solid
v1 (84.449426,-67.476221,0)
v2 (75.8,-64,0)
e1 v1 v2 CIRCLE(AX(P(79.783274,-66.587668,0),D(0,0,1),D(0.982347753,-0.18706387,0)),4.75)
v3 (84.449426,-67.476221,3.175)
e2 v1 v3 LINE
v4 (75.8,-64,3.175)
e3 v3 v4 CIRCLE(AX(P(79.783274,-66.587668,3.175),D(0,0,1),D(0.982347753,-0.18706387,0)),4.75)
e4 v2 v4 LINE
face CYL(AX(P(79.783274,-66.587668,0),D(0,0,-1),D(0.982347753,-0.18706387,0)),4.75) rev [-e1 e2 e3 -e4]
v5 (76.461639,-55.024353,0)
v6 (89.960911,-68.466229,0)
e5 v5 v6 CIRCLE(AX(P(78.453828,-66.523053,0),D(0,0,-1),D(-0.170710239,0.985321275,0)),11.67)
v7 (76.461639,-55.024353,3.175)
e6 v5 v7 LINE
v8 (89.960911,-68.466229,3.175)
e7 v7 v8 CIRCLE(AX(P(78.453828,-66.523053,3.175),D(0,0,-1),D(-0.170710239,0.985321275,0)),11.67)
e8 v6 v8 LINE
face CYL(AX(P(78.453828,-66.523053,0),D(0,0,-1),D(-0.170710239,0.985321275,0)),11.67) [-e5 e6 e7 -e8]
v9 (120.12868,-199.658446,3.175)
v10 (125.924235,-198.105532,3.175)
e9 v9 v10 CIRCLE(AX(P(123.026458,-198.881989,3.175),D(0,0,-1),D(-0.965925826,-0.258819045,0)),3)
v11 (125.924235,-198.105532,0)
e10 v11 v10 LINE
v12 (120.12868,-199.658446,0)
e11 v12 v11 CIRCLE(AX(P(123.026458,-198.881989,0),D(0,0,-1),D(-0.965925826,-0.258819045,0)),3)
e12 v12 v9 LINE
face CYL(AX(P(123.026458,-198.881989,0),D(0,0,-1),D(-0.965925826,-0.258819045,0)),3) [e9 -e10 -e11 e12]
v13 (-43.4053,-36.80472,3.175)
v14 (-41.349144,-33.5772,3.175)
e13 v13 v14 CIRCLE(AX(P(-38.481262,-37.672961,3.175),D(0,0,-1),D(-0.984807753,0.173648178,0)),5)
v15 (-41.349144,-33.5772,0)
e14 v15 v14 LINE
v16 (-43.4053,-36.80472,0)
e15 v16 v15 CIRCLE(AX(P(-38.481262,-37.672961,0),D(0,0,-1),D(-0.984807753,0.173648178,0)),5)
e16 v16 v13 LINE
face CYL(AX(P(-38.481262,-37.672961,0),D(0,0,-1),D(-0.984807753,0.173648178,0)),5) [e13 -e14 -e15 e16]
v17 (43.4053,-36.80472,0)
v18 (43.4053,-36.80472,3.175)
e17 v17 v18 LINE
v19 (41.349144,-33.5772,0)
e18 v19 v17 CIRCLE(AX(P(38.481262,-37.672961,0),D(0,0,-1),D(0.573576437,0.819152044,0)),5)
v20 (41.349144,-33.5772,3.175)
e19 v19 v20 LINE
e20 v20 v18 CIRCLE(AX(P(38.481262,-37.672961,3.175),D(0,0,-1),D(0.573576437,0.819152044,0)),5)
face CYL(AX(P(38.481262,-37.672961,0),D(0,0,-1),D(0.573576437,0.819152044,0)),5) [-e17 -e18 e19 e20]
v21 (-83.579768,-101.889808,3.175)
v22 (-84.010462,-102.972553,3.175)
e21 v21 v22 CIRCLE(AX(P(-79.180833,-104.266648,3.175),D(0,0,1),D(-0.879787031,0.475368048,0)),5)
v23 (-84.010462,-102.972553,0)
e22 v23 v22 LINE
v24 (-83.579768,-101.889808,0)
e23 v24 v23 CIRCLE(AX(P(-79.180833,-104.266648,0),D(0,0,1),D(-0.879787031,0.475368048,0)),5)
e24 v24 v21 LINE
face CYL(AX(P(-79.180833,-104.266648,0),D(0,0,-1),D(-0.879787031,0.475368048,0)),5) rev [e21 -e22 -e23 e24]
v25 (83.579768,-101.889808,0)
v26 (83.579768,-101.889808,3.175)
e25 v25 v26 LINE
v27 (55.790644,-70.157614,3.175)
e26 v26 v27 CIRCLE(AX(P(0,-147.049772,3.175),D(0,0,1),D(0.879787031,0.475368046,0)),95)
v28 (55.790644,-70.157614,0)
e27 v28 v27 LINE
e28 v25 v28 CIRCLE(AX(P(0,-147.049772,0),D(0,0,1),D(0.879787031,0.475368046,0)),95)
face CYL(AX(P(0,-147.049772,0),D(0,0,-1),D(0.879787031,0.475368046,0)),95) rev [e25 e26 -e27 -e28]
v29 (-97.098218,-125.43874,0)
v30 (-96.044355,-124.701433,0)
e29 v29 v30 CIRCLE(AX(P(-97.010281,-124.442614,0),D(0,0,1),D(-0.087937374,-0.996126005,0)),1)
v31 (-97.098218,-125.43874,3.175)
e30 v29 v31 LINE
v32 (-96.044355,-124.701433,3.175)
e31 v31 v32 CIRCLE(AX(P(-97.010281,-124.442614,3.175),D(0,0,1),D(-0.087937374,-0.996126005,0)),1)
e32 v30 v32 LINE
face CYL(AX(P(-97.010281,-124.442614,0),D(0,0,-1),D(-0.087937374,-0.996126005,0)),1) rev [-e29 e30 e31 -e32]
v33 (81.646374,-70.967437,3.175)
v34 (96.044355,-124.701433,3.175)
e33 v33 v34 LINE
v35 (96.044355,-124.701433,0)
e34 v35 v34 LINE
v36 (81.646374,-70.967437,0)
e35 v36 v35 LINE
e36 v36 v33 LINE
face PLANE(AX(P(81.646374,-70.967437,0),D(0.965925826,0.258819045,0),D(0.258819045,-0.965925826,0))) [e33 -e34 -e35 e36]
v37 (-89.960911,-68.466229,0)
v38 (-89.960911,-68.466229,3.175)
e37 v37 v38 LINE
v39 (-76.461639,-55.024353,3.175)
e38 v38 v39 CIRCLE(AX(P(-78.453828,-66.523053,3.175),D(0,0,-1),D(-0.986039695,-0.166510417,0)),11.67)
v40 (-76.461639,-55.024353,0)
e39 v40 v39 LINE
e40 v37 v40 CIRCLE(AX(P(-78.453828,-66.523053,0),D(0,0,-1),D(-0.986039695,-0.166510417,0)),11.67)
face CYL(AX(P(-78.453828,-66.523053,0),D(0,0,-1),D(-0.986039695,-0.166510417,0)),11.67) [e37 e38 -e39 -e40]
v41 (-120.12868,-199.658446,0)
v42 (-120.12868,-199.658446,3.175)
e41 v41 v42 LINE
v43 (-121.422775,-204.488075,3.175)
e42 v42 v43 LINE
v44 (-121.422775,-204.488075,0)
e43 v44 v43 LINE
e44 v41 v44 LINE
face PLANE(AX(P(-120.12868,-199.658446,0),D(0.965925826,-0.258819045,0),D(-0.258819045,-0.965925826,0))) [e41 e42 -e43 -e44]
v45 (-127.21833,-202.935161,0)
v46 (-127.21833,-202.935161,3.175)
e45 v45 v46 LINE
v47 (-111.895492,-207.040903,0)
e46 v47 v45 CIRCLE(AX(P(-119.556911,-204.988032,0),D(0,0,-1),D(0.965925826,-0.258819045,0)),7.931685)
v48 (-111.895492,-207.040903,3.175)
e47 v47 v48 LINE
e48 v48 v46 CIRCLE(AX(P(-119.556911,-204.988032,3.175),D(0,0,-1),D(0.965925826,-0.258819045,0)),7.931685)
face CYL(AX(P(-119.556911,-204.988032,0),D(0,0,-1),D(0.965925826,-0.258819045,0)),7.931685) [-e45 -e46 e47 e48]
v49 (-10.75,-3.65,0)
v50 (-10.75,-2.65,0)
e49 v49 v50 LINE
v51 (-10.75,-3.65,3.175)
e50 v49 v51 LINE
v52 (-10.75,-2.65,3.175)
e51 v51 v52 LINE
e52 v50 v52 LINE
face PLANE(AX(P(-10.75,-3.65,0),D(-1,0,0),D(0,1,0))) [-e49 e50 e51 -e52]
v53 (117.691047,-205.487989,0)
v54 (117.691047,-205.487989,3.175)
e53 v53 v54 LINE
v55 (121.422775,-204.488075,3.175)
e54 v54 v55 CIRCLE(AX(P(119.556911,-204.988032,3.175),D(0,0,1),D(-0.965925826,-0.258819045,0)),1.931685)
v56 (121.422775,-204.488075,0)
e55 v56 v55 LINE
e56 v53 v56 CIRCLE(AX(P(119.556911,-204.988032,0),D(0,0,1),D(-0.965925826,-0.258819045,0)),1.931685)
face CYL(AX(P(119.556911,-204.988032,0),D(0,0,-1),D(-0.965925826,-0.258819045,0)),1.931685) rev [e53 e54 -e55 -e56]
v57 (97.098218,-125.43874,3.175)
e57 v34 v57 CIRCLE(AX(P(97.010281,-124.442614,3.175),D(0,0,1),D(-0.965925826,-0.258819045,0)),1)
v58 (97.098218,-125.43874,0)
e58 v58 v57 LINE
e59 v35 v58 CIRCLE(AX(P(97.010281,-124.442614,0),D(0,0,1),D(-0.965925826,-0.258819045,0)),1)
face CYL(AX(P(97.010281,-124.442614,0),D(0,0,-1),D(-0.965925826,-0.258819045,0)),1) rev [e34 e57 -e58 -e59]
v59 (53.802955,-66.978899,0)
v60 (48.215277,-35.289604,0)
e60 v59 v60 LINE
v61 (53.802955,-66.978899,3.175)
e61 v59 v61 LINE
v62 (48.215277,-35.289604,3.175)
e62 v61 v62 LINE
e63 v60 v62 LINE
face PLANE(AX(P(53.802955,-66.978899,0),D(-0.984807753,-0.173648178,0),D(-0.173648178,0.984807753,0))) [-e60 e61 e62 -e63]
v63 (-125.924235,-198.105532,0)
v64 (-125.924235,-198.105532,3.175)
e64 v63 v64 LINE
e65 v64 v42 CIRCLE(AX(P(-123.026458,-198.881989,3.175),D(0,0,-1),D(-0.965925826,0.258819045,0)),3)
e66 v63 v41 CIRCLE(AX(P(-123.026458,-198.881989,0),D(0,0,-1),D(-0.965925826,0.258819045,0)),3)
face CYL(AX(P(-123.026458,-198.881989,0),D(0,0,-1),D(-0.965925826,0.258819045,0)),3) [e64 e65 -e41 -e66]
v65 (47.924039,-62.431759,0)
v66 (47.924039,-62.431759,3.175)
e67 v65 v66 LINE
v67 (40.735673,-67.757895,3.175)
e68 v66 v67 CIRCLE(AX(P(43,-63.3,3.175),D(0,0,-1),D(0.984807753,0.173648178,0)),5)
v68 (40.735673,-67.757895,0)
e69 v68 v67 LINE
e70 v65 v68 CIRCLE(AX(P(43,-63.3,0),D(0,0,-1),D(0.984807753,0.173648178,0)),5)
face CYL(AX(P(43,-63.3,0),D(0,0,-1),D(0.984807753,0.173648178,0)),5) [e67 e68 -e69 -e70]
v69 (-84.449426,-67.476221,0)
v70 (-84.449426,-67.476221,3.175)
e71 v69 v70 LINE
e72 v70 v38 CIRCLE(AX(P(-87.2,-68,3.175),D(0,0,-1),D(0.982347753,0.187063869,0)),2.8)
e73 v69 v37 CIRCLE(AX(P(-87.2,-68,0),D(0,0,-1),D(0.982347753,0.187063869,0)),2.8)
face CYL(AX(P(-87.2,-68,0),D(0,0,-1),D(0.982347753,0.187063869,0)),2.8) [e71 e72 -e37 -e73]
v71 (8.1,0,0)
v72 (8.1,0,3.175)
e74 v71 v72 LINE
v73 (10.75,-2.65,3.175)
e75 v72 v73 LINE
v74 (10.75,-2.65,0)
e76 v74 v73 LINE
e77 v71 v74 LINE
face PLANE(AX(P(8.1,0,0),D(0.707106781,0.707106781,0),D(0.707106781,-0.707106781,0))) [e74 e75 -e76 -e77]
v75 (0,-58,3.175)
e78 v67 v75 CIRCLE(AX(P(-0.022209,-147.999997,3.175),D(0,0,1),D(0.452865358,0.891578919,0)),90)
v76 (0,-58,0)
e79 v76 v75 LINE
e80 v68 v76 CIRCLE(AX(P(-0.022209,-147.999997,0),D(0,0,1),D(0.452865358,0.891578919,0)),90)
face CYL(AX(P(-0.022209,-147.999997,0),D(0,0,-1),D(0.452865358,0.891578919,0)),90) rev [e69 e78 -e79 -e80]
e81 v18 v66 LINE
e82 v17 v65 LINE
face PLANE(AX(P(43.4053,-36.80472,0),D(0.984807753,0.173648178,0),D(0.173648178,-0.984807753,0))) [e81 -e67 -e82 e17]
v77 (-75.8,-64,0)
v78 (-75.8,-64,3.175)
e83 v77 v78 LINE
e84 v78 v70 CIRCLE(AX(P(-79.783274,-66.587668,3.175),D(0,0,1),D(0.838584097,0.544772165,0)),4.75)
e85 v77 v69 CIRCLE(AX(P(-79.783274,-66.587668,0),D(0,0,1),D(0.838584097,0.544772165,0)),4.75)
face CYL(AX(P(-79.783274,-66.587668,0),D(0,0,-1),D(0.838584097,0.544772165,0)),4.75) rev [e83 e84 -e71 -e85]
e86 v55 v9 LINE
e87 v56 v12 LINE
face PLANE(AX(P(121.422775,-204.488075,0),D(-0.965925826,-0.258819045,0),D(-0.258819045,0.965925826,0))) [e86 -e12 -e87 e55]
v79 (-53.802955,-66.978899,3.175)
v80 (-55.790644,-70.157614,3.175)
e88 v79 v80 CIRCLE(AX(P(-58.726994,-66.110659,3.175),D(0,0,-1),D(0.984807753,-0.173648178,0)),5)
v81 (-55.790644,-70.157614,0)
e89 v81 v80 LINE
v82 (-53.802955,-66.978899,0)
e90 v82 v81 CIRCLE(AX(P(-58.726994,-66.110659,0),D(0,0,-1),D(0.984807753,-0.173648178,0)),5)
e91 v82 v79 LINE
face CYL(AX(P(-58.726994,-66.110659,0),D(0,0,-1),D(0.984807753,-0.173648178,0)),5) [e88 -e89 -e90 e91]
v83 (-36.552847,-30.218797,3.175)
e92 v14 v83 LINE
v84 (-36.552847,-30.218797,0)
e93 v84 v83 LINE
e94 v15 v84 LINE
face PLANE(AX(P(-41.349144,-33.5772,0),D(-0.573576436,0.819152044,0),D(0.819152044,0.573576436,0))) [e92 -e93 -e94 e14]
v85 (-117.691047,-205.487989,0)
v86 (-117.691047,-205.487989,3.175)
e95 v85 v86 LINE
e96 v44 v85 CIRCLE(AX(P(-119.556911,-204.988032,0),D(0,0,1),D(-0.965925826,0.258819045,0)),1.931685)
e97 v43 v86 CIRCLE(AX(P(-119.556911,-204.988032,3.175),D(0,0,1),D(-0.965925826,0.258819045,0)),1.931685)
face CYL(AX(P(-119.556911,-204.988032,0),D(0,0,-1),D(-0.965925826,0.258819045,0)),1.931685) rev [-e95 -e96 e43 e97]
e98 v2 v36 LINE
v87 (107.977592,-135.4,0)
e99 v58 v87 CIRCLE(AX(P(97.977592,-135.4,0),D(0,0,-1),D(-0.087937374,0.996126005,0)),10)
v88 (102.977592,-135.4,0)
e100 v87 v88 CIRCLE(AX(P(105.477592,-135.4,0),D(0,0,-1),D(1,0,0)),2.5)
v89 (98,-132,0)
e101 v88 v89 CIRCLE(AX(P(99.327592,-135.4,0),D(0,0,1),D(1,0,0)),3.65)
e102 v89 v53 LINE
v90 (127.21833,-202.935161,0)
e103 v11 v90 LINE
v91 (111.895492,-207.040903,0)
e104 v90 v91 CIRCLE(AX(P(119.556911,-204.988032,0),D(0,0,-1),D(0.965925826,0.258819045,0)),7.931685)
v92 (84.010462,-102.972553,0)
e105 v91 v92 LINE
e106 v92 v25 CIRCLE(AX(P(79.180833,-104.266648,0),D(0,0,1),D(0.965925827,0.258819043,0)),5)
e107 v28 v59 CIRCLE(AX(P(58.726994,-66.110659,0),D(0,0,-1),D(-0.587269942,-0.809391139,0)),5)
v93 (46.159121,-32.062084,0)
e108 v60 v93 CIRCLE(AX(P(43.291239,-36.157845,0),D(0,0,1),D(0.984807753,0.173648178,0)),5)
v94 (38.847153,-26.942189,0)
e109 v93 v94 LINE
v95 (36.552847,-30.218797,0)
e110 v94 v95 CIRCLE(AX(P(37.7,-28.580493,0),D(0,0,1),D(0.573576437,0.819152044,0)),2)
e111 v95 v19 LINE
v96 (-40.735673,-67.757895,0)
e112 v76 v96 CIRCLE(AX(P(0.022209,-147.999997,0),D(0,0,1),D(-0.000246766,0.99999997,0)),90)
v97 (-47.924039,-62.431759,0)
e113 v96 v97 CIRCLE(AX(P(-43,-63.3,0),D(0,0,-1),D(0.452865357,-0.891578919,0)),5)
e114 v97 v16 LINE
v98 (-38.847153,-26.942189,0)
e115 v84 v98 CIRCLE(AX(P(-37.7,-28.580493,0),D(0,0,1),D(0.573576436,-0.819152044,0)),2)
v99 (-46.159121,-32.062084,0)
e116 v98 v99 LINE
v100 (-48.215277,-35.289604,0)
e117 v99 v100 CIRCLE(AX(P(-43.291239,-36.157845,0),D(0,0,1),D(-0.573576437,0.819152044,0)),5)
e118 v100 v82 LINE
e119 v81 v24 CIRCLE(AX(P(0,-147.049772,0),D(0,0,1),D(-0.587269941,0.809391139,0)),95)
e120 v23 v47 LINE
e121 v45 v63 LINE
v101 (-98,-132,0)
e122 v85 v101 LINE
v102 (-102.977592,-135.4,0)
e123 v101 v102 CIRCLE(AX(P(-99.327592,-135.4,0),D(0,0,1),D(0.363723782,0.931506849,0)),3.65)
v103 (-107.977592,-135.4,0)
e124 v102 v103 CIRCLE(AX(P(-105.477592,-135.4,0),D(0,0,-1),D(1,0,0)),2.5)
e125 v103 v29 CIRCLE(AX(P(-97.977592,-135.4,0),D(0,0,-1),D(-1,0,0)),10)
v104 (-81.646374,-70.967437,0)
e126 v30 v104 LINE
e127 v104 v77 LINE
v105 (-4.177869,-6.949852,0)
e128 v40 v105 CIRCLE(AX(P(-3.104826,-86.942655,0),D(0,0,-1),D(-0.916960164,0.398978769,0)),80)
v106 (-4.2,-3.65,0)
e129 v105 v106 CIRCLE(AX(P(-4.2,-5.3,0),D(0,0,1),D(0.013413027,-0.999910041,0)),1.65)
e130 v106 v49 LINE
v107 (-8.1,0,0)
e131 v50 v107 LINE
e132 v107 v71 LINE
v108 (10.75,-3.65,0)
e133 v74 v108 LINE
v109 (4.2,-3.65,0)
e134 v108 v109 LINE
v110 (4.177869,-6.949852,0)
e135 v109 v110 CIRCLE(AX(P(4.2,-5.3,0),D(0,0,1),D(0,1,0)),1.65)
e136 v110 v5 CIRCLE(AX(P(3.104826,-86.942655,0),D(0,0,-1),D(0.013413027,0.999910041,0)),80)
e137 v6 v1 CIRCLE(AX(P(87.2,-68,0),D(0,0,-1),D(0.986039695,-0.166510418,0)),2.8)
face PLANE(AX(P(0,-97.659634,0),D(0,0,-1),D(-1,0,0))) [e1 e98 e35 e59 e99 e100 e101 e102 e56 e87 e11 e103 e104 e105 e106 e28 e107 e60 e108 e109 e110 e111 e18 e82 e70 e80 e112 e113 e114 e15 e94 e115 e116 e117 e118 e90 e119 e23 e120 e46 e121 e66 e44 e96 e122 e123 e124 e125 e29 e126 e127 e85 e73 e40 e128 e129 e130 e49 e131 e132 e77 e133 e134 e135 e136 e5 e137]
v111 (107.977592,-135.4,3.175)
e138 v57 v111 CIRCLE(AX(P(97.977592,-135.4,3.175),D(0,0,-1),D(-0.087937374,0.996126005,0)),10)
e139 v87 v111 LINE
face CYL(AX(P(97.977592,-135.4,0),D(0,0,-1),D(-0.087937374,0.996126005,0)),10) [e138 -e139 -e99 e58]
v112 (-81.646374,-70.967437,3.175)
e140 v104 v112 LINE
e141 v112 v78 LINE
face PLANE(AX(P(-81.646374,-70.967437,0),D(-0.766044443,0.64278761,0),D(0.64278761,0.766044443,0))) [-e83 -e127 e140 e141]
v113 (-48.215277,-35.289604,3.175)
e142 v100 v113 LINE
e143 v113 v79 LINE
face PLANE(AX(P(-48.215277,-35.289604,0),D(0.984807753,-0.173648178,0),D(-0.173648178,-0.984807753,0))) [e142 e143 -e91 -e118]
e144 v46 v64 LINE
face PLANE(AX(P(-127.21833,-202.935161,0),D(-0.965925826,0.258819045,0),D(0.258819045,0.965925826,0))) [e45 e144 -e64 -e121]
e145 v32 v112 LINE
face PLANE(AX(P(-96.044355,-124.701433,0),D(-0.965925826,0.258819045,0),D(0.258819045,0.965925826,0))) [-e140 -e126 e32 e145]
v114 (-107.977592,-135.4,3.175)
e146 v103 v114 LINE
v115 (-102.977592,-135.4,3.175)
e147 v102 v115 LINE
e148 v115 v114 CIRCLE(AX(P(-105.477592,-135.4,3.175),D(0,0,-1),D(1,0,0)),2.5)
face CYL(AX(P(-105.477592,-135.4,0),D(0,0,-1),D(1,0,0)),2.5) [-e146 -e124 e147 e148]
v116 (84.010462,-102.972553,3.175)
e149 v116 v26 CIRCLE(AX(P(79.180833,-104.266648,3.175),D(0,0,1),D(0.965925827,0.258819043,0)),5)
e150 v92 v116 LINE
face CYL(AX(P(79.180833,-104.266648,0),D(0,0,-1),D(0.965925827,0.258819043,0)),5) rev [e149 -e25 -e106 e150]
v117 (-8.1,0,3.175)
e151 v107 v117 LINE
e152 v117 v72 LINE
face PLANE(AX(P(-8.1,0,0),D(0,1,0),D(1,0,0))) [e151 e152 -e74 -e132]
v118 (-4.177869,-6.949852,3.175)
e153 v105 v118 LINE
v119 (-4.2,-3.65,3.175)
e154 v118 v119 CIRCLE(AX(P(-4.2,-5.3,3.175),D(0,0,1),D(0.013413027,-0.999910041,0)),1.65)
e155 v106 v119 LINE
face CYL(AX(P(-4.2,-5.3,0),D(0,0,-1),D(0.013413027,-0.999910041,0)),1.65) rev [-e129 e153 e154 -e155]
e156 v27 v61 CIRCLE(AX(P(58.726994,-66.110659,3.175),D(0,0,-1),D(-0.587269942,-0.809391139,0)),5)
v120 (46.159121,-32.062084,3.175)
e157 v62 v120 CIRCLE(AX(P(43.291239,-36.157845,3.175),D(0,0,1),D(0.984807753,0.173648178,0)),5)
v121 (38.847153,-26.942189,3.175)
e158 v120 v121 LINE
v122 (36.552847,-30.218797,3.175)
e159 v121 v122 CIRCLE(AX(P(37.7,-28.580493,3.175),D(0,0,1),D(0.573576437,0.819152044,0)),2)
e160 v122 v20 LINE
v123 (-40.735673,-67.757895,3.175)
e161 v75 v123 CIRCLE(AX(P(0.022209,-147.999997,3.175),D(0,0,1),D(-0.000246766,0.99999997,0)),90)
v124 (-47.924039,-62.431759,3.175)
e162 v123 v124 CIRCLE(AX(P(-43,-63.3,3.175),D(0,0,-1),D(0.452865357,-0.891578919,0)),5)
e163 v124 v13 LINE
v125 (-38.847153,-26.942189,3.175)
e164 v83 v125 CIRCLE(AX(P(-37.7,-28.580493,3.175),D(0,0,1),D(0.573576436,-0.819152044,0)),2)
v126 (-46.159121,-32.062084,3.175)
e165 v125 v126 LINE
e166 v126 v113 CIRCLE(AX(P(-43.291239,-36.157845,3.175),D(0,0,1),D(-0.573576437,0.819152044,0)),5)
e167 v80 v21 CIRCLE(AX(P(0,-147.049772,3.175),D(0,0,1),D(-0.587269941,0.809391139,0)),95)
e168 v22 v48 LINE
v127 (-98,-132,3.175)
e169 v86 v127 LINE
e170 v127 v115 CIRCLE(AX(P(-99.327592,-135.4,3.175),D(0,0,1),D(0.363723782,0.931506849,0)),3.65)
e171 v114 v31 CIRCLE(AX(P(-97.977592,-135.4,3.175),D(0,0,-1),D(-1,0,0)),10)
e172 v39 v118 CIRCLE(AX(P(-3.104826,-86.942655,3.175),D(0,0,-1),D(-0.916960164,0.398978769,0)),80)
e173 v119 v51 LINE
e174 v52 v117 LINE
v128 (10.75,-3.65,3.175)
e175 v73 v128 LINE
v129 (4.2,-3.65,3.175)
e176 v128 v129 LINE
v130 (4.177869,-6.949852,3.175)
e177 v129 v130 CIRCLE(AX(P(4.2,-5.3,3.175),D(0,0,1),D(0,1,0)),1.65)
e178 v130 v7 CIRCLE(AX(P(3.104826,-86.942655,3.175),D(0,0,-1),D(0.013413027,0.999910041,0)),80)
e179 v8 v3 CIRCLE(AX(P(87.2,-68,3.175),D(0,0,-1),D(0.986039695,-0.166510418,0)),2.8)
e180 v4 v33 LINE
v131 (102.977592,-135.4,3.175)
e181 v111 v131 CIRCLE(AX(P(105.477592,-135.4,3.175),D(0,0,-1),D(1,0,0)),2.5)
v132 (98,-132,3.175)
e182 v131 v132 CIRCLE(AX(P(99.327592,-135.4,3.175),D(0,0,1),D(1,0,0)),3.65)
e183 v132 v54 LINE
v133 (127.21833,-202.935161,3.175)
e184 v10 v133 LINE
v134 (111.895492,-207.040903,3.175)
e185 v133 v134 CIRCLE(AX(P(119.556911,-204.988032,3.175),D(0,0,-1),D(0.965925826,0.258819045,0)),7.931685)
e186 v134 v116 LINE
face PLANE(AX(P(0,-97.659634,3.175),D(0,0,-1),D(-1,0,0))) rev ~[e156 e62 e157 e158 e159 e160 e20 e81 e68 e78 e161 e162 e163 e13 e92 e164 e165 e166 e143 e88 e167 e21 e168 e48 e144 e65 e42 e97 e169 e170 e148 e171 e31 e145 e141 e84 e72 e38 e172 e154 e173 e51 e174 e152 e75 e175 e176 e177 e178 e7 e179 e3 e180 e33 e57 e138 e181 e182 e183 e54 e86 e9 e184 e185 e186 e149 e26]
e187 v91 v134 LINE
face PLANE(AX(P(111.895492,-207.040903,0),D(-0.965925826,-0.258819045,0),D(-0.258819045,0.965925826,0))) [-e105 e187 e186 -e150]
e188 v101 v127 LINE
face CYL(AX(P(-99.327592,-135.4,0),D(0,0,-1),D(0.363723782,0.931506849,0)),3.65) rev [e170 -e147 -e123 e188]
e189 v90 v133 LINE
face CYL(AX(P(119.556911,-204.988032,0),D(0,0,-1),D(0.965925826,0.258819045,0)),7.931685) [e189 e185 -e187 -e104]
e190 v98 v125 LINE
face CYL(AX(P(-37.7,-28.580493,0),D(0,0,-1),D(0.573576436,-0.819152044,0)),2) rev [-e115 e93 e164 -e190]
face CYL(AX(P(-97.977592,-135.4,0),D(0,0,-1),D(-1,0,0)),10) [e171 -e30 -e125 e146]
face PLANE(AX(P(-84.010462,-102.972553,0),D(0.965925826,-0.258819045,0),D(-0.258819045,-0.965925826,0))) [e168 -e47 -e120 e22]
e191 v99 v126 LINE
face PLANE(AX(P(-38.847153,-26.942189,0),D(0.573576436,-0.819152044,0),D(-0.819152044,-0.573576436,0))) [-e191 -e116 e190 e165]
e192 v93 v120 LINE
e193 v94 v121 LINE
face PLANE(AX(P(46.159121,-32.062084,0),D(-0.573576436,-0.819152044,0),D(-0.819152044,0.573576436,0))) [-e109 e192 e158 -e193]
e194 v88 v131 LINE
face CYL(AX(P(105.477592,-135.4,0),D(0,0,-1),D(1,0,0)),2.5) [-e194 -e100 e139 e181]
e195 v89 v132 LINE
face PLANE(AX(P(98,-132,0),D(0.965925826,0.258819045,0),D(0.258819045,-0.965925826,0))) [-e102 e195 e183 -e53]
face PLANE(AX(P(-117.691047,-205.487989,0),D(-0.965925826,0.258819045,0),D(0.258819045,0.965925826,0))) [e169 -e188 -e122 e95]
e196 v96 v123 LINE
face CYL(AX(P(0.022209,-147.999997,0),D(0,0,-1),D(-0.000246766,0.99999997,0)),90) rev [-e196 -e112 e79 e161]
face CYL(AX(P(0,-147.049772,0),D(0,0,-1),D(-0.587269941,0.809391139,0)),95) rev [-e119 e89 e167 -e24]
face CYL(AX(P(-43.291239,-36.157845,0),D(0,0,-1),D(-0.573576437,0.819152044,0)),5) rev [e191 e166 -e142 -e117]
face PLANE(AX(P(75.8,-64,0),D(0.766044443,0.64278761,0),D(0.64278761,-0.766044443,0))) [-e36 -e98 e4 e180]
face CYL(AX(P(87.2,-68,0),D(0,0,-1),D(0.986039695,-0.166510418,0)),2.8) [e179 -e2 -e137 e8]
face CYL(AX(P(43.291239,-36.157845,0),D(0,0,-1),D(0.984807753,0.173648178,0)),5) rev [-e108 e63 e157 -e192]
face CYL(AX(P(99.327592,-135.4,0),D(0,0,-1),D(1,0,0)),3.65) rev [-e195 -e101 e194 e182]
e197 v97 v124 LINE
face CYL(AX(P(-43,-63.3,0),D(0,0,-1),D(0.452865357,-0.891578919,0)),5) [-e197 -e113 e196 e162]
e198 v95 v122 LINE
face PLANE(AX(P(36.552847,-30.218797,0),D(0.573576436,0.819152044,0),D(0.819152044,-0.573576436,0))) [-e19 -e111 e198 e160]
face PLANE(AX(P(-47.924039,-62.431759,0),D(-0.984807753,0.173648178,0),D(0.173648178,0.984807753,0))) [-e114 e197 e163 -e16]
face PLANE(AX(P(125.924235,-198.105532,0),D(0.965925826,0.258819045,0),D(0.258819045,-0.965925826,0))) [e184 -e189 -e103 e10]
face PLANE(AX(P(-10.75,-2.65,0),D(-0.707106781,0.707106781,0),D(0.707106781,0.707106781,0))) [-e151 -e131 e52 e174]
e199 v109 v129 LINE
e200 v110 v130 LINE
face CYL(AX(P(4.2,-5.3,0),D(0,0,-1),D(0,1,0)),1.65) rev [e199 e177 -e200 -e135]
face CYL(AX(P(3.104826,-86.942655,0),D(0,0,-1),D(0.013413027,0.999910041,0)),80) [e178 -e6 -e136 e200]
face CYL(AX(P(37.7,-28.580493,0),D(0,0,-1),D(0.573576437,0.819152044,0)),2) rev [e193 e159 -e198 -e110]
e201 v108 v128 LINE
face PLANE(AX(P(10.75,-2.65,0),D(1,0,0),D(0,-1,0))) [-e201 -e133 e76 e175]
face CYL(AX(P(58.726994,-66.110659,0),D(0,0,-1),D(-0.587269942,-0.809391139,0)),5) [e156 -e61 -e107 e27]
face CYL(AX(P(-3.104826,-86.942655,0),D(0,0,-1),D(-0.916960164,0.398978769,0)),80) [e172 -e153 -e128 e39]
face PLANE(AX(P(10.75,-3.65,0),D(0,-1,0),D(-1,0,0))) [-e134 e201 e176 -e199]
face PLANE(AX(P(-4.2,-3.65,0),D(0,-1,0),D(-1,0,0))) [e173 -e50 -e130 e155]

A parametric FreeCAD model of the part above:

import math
import FreeCAD as App
import Part
import Sketcher

V = App.Vector
Q = App.Units.Quantity

doc = App.newDocument("Part")
body = doc.addObject("PartDesign::Body", "Body")

sketch1 = doc.addObject("Sketcher::SketchObject", "Sketch")
body.addObject(sketch1)
sketch1.AttachmentSupport = (doc.XY_Plane, [""])
sketch1.MapMode = "FlatFace"
sketch1.addGeometry(Part.LineSegment(V(8.1, 0, 0), V(-8.1, 0, 0)), False)
sketch1.addGeometry(Part.LineSegment(V(-8.1, 0, 0), V(-10.75, -2.65, 0)), False)
sketch1.addGeometry(Part.LineSegment(V(-10.75, -2.65, 0), V(-10.75, -3.65, 0)), False)
sketch1.addGeometry(Part.LineSegment(V(-10.75, -3.65, 0), V(-4.2, -3.65, 0)), False)
sketch1.addGeometry(Part.ArcOfCircle(Part.Circle(V(-4.2, -5.3, 0), V(0, 0, 1), 1.65), math.radians(-89.231467), math.radians(90)), False)
sketch1.addGeometry(Part.ArcOfCircle(Part.Circle(V(-3.104826, -86.942655, 0), V(0, 0, 1), 80), math.radians(90.768533), math.radians(156.485648)), False)
sketch1.addGeometry(Part.ArcOfCircle(Part.Circle(V(-78.453828, -66.523053, 0), V(0, 0, 1), 11.67), math.radians(80.170884), math.radians(189.584989)), False)
sketch1.addGeometry(Part.ArcOfCircle(Part.Circle(V(-87.2, -68, 0), V(0, 0, 1), 2.8), math.radians(-170.415011), math.radians(10.781484)), False)
sketch1.addGeometry(Part.ArcOfCircle(Part.Circle(V(-79.783274, -66.587668, 0), V(0, 0, 1), 4.75), math.radians(33.009096), math.radians(190.781484)), False)
sketch1.addGeometry(Part.LineSegment(V(-75.8, -64, 0), V(-81.646374, -70.967437, 0)), False)
sketch1.addGeometry(Part.LineSegment(V(-81.646374, -70.967437, 0), V(-96.044355, -124.701433, 0)), False)
sketch1.addGeometry(Part.ArcOfCircle(Part.Circle(V(-97.010281, -124.442614, 0), V(0, 0, 1), 1), math.radians(-95.044957), math.radians(-15)), False)
sketch1.addGeometry(Part.ArcOfCircle(Part.Circle(V(-97.977592, -135.4, 0), V(0, 0, 1), 10), math.radians(84.955043), math.radians(180)), False)
sketch1.addGeometry(Part.ArcOfCircle(Part.Circle(V(-105.477592, -135.4, 0), V(0, 0, 1), 2.5), math.radians(180), math.radians(360)), False)
sketch1.addGeometry(Part.ArcOfCircle(Part.Circle(V(-99.327592, -135.4, 0), V(0, 0, 1), 3.65), math.radians(68.670937), math.radians(180)), False)
sketch1.addGeometry(Part.LineSegment(V(-98, -132, 0), V(-117.691047, -205.487989, 0)), False)
sketch1.addGeometry(Part.ArcOfCircle(Part.Circle(V(-119.556911, -204.988032, 0), V(0, 0, 1), 1.931685), math.radians(165), math.radians(345)), False)
sketch1.addGeometry(Part.LineSegment(V(-121.422775, -204.488075, 0), V(-120.12868, -199.658446, 0)), False)
sketch1.addGeometry(Part.ArcOfCircle(Part.Circle(V(-123.026458, -198.881989, 0), V(0, 0, 1), 3), math.radians(-15), math.radians(165)), False)
sketch1.addGeometry(Part.LineSegment(V(-125.924235, -198.105532, 0), V(-127.21833, -202.935161, 0)), False)
sketch1.addGeometry(Part.ArcOfCircle(Part.Circle(V(-119.556911, -204.988032, 0), V(0, 0, 1), 7.931685), math.radians(165), math.radians(345)), False)
sketch1.addGeometry(Part.LineSegment(V(-111.895492, -207.040903, 0), V(-84.010462, -102.972553, 0)), False)
sketch1.addGeometry(Part.ArcOfCircle(Part.Circle(V(-79.180833, -104.266648, 0), V(0, 0, 1), 5), math.radians(151.616684), math.radians(165)), False)
sketch1.addGeometry(Part.ArcOfCircle(Part.Circle(V(0, -147.049772, 0), V(0, 0, 1), 95), math.radians(125.963513), math.radians(151.616684)), False)
sketch1.addGeometry(Part.ArcOfCircle(Part.Circle(V(-58.726994, -66.110659, 0), V(0, 0, 1), 5), math.radians(-54.036487), math.radians(-10)), False)
sketch1.addGeometry(Part.LineSegment(V(-53.802955, -66.978899, 0), V(-48.215277, -35.289604, 0)), False)
sketch1.addGeometry(Part.ArcOfCircle(Part.Circle(V(-43.291239, -36.157845, 0), V(0, 0, 1), 5), math.radians(125), math.radians(170)), False)
sketch1.addGeometry(Part.LineSegment(V(-46.159121, -32.062084, 0), V(-38.847153, -26.942189, 0)), False)
sketch1.addGeometry(Part.ArcOfCircle(Part.Circle(V(-37.7, -28.580493, 0), V(0, 0, 1), 2), math.radians(-55), math.radians(125)), False)
sketch1.addGeometry(Part.LineSegment(V(-36.552847, -30.218797, 0), V(-41.349144, -33.5772, 0)), False)
sketch1.addGeometry(Part.ArcOfCircle(Part.Circle(V(-38.481262, -37.672961, 0), V(0, 0, 1), 5), math.radians(125), math.radians(170)), False)
sketch1.addGeometry(Part.LineSegment(V(-43.4053, -36.80472, 0), V(-47.924039, -62.431759, 0)), False)
sketch1.addGeometry(Part.ArcOfCircle(Part.Circle(V(-43, -63.3, 0), V(0, 0, 1), 5), math.radians(170), math.radians(296.927671)), False)
sketch1.addGeometry(Part.ArcOfCircle(Part.Circle(V(0.022209, -147.999997, 0), V(0, 0, 1), 90), math.radians(90.014139), math.radians(116.927671)), False)
sketch1.addGeometry(Part.ArcOfCircle(Part.Circle(V(-0.022209, -147.999997, 0), V(0, 0, 1), 90), math.radians(63.072329), math.radians(89.985861)), False)
sketch1.addGeometry(Part.ArcOfCircle(Part.Circle(V(43, -63.3, 0), V(0, 0, 1), 5), math.radians(-116.927671), math.radians(10)), False)
sketch1.addGeometry(Part.LineSegment(V(47.924039, -62.431759, 0), V(43.4053, -36.80472, 0)), False)
sketch1.addGeometry(Part.ArcOfCircle(Part.Circle(V(38.481262, -37.672961, 0), V(0, 0, 1), 5), math.radians(10), math.radians(55)), False)
sketch1.addGeometry(Part.LineSegment(V(41.349144, -33.5772, 0), V(36.552847, -30.218797, 0)), False)
sketch1.addGeometry(Part.ArcOfCircle(Part.Circle(V(37.7, -28.580493, 0), V(0, 0, 1), 2), math.radians(55), math.radians(235)), False)
sketch1.addGeometry(Part.LineSegment(V(38.847153, -26.942189, 0), V(46.159121, -32.062084, 0)), False)
sketch1.addGeometry(Part.ArcOfCircle(Part.Circle(V(43.291239, -36.157845, 0), V(0, 0, 1), 5), math.radians(10), math.radians(55)), False)
sketch1.addGeometry(Part.LineSegment(V(48.215277, -35.289604, 0), V(53.802955, -66.978899, 0)), False)
sketch1.addGeometry(Part.ArcOfCircle(Part.Circle(V(58.726994, -66.110659, 0), V(0, 0, 1), 5), math.radians(-170), math.radians(-125.963513)), False)
sketch1.addGeometry(Part.ArcOfCircle(Part.Circle(V(0, -147.049772, 0), V(0, 0, 1), 95), math.radians(28.383316), math.radians(54.036487)), False)
sketch1.addGeometry(Part.ArcOfCircle(Part.Circle(V(79.180833, -104.266648, 0), V(0, 0, 1), 5), math.radians(15), math.radians(28.383316)), False)
sketch1.addGeometry(Part.LineSegment(V(84.010462, -102.972553, 0), V(111.895492, -207.040903, 0)), False)
sketch1.addGeometry(Part.ArcOfCircle(Part.Circle(V(119.556911, -204.988032, 0), V(0, 0, 1), 7.931685), math.radians(-165), math.radians(15)), False)
sketch1.addGeometry(Part.LineSegment(V(127.21833, -202.935161, 0), V(125.924235, -198.105532, 0)), False)
sketch1.addGeometry(Part.ArcOfCircle(Part.Circle(V(123.026458, -198.881989, 0), V(0, 0, 1), 3), math.radians(15), math.radians(195)), False)
sketch1.addGeometry(Part.LineSegment(V(120.12868, -199.658446, 0), V(121.422775, -204.488075, 0)), False)
sketch1.addGeometry(Part.ArcOfCircle(Part.Circle(V(119.556911, -204.988032, 0), V(0, 0, 1), 1.931685), math.radians(-165), math.radians(15)), False)
sketch1.addGeometry(Part.LineSegment(V(117.691047, -205.487989, 0), V(98, -132, 0)), False)
sketch1.addGeometry(Part.ArcOfCircle(Part.Circle(V(99.327592, -135.4, 0), V(0, 0, 1), 3.65), math.radians(0), math.radians(111.329063)), False)
sketch1.addGeometry(Part.ArcOfCircle(Part.Circle(V(105.477592, -135.4, 0), V(0, 0, 1), 2.5), math.radians(180), math.radians(360)), False)
sketch1.addGeometry(Part.ArcOfCircle(Part.Circle(V(97.977592, -135.4, 0), V(0, 0, 1), 10), math.radians(0), math.radians(95.044957)), False)
sketch1.addGeometry(Part.ArcOfCircle(Part.Circle(V(97.010281, -124.442614, 0), V(0, 0, 1), 1), math.radians(-165), math.radians(-84.955043)), False)
sketch1.addGeometry(Part.LineSegment(V(96.044355, -124.701433, 0), V(81.646374, -70.967437, 0)), False)
sketch1.addGeometry(Part.LineSegment(V(81.646374, -70.967437, 0), V(75.8, -64, 0)), False)
sketch1.addGeometry(Part.ArcOfCircle(Part.Circle(V(79.783274, -66.587668, 0), V(0, 0, 1), 4.75), math.radians(-10.781484), math.radians(146.990904)), False)
sketch1.addGeometry(Part.ArcOfCircle(Part.Circle(V(87.2, -68, 0), V(0, 0, 1), 2.8), math.radians(169.218516), math.radians(350.415011)), False)
sketch1.addGeometry(Part.ArcOfCircle(Part.Circle(V(78.453828, -66.523053, 0), V(0, 0, 1), 11.67), math.radians(-9.584989), math.radians(99.829116)), False)
sketch1.addGeometry(Part.ArcOfCircle(Part.Circle(V(3.104826, -86.942655, 0), V(0, 0, 1), 80), math.radians(23.514352), math.radians(89.231467)), False)
sketch1.addGeometry(Part.ArcOfCircle(Part.Circle(V(4.2, -5.3, 0), V(0, 0, 1), 1.65), math.radians(90), math.radians(269.231467)), False)
sketch1.addGeometry(Part.LineSegment(V(4.2, -3.65, 0), V(10.75, -3.65, 0)), False)
sketch1.addGeometry(Part.LineSegment(V(10.75, -3.65, 0), V(10.75, -2.65, 0)), False)
sketch1.addGeometry(Part.LineSegment(V(10.75, -2.65, 0), V(8.1, 0, 0)), False)
sketch1.addConstraint(Sketcher.Constraint("Coincident", 0, 2, 1, 1))
sketch1.addConstraint(Sketcher.Constraint("Coincident", 1, 2, 2, 1))
sketch1.addConstraint(Sketcher.Constraint("Coincident", 2, 2, 3, 1))
sketch1.addConstraint(Sketcher.Constraint("Coincident", 3, 2, 4, 2))
sketch1.addConstraint(Sketcher.Constraint("Coincident", 4, 1, 5, 1))
sketch1.addConstraint(Sketcher.Constraint("Coincident", 5, 2, 6, 1))
sketch1.addConstraint(Sketcher.Constraint("Coincident", 6, 2, 7, 1))
sketch1.addConstraint(Sketcher.Constraint("Coincident", 7, 2, 8, 2))
sketch1.addConstraint(Sketcher.Constraint("Coincident", 8, 1, 9, 1))
sketch1.addConstraint(Sketcher.Constraint("Coincident", 9, 2, 10, 1))
sketch1.addConstraint(Sketcher.Constraint("Coincident", 10, 2, 11, 2))
sketch1.addConstraint(Sketcher.Constraint("Coincident", 11, 1, 12, 1))
sketch1.addConstraint(Sketcher.Constraint("Coincident", 12, 2, 13, 1))
sketch1.addConstraint(Sketcher.Constraint("Coincident", 13, 2, 14, 2))
sketch1.addConstraint(Sketcher.Constraint("Coincident", 14, 1, 15, 1))
sketch1.addConstraint(Sketcher.Constraint("Coincident", 15, 2, 16, 2))
sketch1.addConstraint(Sketcher.Constraint("Coincident", 16, 1, 17, 1))
sketch1.addConstraint(Sketcher.Constraint("Coincident", 17, 2, 18, 1))
sketch1.addConstraint(Sketcher.Constraint("Coincident", 18, 2, 19, 1))
sketch1.addConstraint(Sketcher.Constraint("Coincident", 19, 2, 20, 1))
sketch1.addConstraint(Sketcher.Constraint("Coincident", 20, 2, 21, 1))
sketch1.addConstraint(Sketcher.Constraint("Coincident", 21, 2, 22, 2))
sketch1.addConstraint(Sketcher.Constraint("Coincident", 22, 1, 23, 2))
sketch1.addConstraint(Sketcher.Constraint("Coincident", 23, 1, 24, 1))
sketch1.addConstraint(Sketcher.Constraint("Coincident", 24, 2, 25, 1))
sketch1.addConstraint(Sketcher.Constraint("Coincident", 25, 2, 26, 2))
sketch1.addConstraint(Sketcher.Constraint("Coincident", 26, 1, 27, 1))
sketch1.addConstraint(Sketcher.Constraint("Coincident", 27, 2, 28, 2))
sketch1.addConstraint(Sketcher.Constraint("Coincident", 28, 1, 29, 1))
sketch1.addConstraint(Sketcher.Constraint("Coincident", 29, 2, 30, 1))
sketch1.addConstraint(Sketcher.Constraint("Coincident", 30, 2, 31, 1))
sketch1.addConstraint(Sketcher.Constraint("Coincident", 31, 2, 32, 1))
sketch1.addConstraint(Sketcher.Constraint("Coincident", 32, 2, 33, 2))
sketch1.addConstraint(Sketcher.Constraint("Coincident", 33, 1, 34, 2))
sketch1.addConstraint(Sketcher.Constraint("Coincident", 34, 1, 35, 1))
sketch1.addConstraint(Sketcher.Constraint("Coincident", 35, 2, 36, 1))
sketch1.addConstraint(Sketcher.Constraint("Coincident", 36, 2, 37, 1))
sketch1.addConstraint(Sketcher.Constraint("Coincident", 37, 2, 38, 1))
sketch1.addConstraint(Sketcher.Constraint("Coincident", 38, 2, 39, 2))
sketch1.addConstraint(Sketcher.Constraint("Coincident", 39, 1, 40, 1))
sketch1.addConstraint(Sketcher.Constraint("Coincident", 40, 2, 41, 2))
sketch1.addConstraint(Sketcher.Constraint("Coincident", 41, 1, 42, 1))
sketch1.addConstraint(Sketcher.Constraint("Coincident", 42, 2, 43, 1))
sketch1.addConstraint(Sketcher.Constraint("Coincident", 43, 2, 44, 2))
sketch1.addConstraint(Sketcher.Constraint("Coincident", 44, 1, 45, 2))
sketch1.addConstraint(Sketcher.Constraint("Coincident", 45, 1, 46, 1))
sketch1.addConstraint(Sketcher.Constraint("Coincident", 46, 2, 47, 1))
sketch1.addConstraint(Sketcher.Constraint("Coincident", 47, 2, 48, 1))
sketch1.addConstraint(Sketcher.Constraint("Coincident", 48, 2, 49, 1))
sketch1.addConstraint(Sketcher.Constraint("Coincident", 49, 2, 50, 1))
sketch1.addConstraint(Sketcher.Constraint("Coincident", 50, 2, 51, 2))
sketch1.addConstraint(Sketcher.Constraint("Coincident", 51, 1, 52, 1))
sketch1.addConstraint(Sketcher.Constraint("Coincident", 52, 2, 53, 2))
sketch1.addConstraint(Sketcher.Constraint("Coincident", 53, 1, 54, 1))
sketch1.addConstraint(Sketcher.Constraint("Coincident", 54, 2, 55, 1))
sketch1.addConstraint(Sketcher.Constraint("Coincident", 55, 2, 56, 2))
sketch1.addConstraint(Sketcher.Constraint("Coincident", 56, 1, 57, 1))
sketch1.addConstraint(Sketcher.Constraint("Coincident", 57, 2, 58, 1))
sketch1.addConstraint(Sketcher.Constraint("Coincident", 58, 2, 59, 2))
sketch1.addConstraint(Sketcher.Constraint("Coincident", 59, 1, 60, 1))
sketch1.addConstraint(Sketcher.Constraint("Coincident", 60, 2, 61, 1))
sketch1.addConstraint(Sketcher.Constraint("Coincident", 61, 2, 62, 1))
sketch1.addConstraint(Sketcher.Constraint("Coincident", 62, 2, 63, 2))
sketch1.addConstraint(Sketcher.Constraint("Coincident", 63, 1, 64, 1))
sketch1.addConstraint(Sketcher.Constraint("Coincident", 64, 2, 65, 1))
sketch1.addConstraint(Sketcher.Constraint("Coincident", 65, 2, 66, 1))
sketch1.addConstraint(Sketcher.Constraint("Coincident", 66, 2, 0, 1))
sketch1.addConstraint(Sketcher.Constraint("Horizontal", 0))
sketch1.addConstraint(Sketcher.Constraint("Vertical", 2))
sketch1.addConstraint(Sketcher.Constraint("Horizontal", 3))
sketch1.addConstraint(Sketcher.Constraint("Horizontal", 64))
sketch1.addConstraint(Sketcher.Constraint("Vertical", 65))
sketch1.addConstraint(Sketcher.Constraint("Coincident", 20, 3, 16, 3))
sketch1.addConstraint(Sketcher.Constraint("Coincident", 44, 3, 23, 3))
sketch1.addConstraint(Sketcher.Constraint("Coincident", 51, 3, 47, 3))
sketch1.addConstraint(Sketcher.Constraint("PointOnObject", 23, 3, -2))
sketch1.addConstraint(Sketcher.Constraint("PointOnObject", 0, 2, -1))
sketch1.addConstraint(Sketcher.Constraint("PointOnObject", 33, 1, -2))
sketch1.addConstraint(Sketcher.Constraint("Radius", 5, Q("80 mm")))
sketch1.addConstraint(Sketcher.Constraint("Radius", 11, Q("1 mm")))
sketch1.addConstraint(Sketcher.Constraint("Radius", 12, Q("10 mm")))
sketch1.addConstraint(Sketcher.Constraint("Radius", 18, Q("3 mm")))
sketch1.addConstraint(Sketcher.Constraint("Radius", 22, Q("5 mm")))
sketch1.addConstraint(Sketcher.Constraint("Radius", 23, Q("95 mm")))
sketch1.addConstraint(Sketcher.Constraint("Radius", 24, Q("5 mm")))
sketch1.addConstraint(Sketcher.Constraint("Radius", 26, Q("5 mm")))
sketch1.addConstraint(Sketcher.Constraint("Radius", 28, Q("2 mm")))
sketch1.addConstraint(Sketcher.Constraint("Radius", 30, Q("5 mm")))
sketch1.addConstraint(Sketcher.Constraint("Radius", 32, Q("5 mm")))
sketch1.addConstraint(Sketcher.Constraint("Radius", 33, Q("90 mm")))
sketch1.addConstraint(Sketcher.Constraint("Radius", 34, Q("90 mm")))
sketch1.addConstraint(Sketcher.Constraint("Radius", 35, Q("5 mm")))
sketch1.addConstraint(Sketcher.Constraint("Radius", 37, Q("5 mm")))
sketch1.addConstraint(Sketcher.Constraint("Radius", 39, Q("2 mm")))
sketch1.addConstraint(Sketcher.Constraint("Radius", 41, Q("5 mm")))
sketch1.addConstraint(Sketcher.Constraint("Radius", 43, Q("5 mm")))
sketch1.addConstraint(Sketcher.Constraint("Radius", 44, Q("95 mm")))
sketch1.addConstraint(Sketcher.Constraint("Radius", 45, Q("5 mm")))
sketch1.addConstraint(Sketcher.Constraint("Radius", 49, Q("3 mm")))
sketch1.addConstraint(Sketcher.Constraint("Radius", 55, Q("10 mm")))
sketch1.addConstraint(Sketcher.Constraint("Radius", 56, Q("1 mm")))
sketch1.addConstraint(Sketcher.Constraint("Radius", 62, Q("80 mm")))
sketch1.addConstraint(Sketcher.Constraint("Radius", 7, Q("2.8 mm")))
sketch1.addConstraint(Sketcher.Constraint("Radius", 13, Q("2.5 mm")))
sketch1.addConstraint(Sketcher.Constraint("Radius", 54, Q("2.5 mm")))
sketch1.addConstraint(Sketcher.Constraint("Radius", 60, Q("2.8 mm")))
sketch1.addConstraint(Sketcher.Constraint("DistanceY", 2, 2, 2, 1, Q("1 mm")))
sketch1.addConstraint(Sketcher.Constraint("DistanceY", 65, 1, 65, 2, Q("1 mm")))
sketch1.addConstraint(Sketcher.Constraint("Radius", 4, Q("1.65 mm")))
sketch1.addConstraint(Sketcher.Constraint("Radius", 6, Q("11.67 mm")))
sketch1.addConstraint(Sketcher.Constraint("Radius", 8, Q("4.75 mm")))
sketch1.addConstraint(Sketcher.Constraint("Radius", 14, Q("3.65 mm")))
sketch1.addConstraint(Sketcher.Constraint("Radius", 53, Q("3.65 mm")))
sketch1.addConstraint(Sketcher.Constraint("Radius", 59, Q("4.75 mm")))
sketch1.addConstraint(Sketcher.Constraint("Radius", 61, Q("11.67 mm")))
sketch1.addConstraint(Sketcher.Constraint("Radius", 63, Q("1.65 mm")))
sketch1.addConstraint(Sketcher.Constraint("Distance", 17, Q("5 mm")))
sketch1.addConstraint(Sketcher.Constraint("Distance", 19, Q("5 mm")))
sketch1.addConstraint(Sketcher.Constraint("Distance", 48, Q("5 mm")))
sketch1.addConstraint(Sketcher.Constraint("Distance", 50, Q("5 mm")))
sketch1.addConstraint(Sketcher.Constraint("DistanceX", 0, 2, 0, 1, Q("16.2 mm")))
sketch1.addConstraint(Sketcher.Constraint("DistanceY", 7, 3, -1, 1, Q("68 mm")))
sketch1.addConstraint(Sketcher.Constraint("DistanceX", 32, 3, -1, 1, Q("43 mm")))
sketch1.addConstraint(Sketcher.Constraint("DistanceX", -1, 1, 35, 3, Q("43 mm")))
sketch1.addConstraint(Sketcher.Constraint("DistanceY", 60, 3, -1, 1, Q("68 mm")))
sketch1.addConstraint(Sketcher.Constraint("DistanceY", 8, 1, -1, 1, Q("64 mm")))
sketch1.addConstraint(Sketcher.Constraint("DistanceX", 14, 1, -1, 1, Q("98 mm")))
sketch1.addConstraint(Sketcher.Constraint("DistanceY", 14, 1, -1, 1, Q("132 mm")))
sketch1.addConstraint(Sketcher.Constraint("DistanceY", 33, 1, -1, 1, Q("58 mm")))
sketch1.addConstraint(Sketcher.Constraint("DistanceX", -1, 1, 52, 2, Q("98 mm")))
sketch1.addConstraint(Sketcher.Constraint("DistanceY", 52, 2, -1, 1, Q("132 mm")))
sketch1.addConstraint(Sketcher.Constraint("DistanceY", 58, 2, -1, 1, Q("64 mm")))
sketch1.addConstraint(Sketcher.Constraint("DistanceX", 3, 1, 3, 2, Q("6.55 mm")))
sketch1.addConstraint(Sketcher.Constraint("DistanceX", 64, 1, 64, 2, Q("6.55 mm")))
sketch1.addConstraint(Sketcher.Constraint("DistanceX", 4, 3, -1, 1, Q("4.2 mm")))
sketch1.addConstraint(Sketcher.Constraint("DistanceY", 4, 3, -1, 1, Q("5.3 mm")))
sketch1.addConstraint(Sketcher.Constraint("DistanceX", 7, 3, -1, 1, Q("87.2 mm")))
sketch1.addConstraint(Sketcher.Constraint("DistanceY", 12, 3, -1, 1, Q("135.4 mm")))
sketch1.addConstraint(Sketcher.Constraint("DistanceY", 13, 3, -1, 1, Q("135.4 mm")))
sketch1.addConstraint(Sketcher.Constraint("DistanceY", 14, 3, -1, 1, Q("135.4 mm")))
sketch1.addConstraint(Sketcher.Constraint("DistanceX", 28, 3, -1, 1, Q("37.7 mm")))
sketch1.addConstraint(Sketcher.Constraint("DistanceY", 32, 3, -1, 1, Q("63.3 mm")))
sketch1.addConstraint(Sketcher.Constraint("DistanceY", 35, 3, -1, 1, Q("63.3 mm")))
sketch1.addConstraint(Sketcher.Constraint("DistanceX", -1, 1, 39, 3, Q("37.7 mm")))
sketch1.addConstraint(Sketcher.Constraint("DistanceY", 53, 3, -1, 1, Q("135.4 mm")))
sketch1.addConstraint(Sketcher.Constraint("DistanceY", 54, 3, -1, 1, Q("135.4 mm")))
sketch1.addConstraint(Sketcher.Constraint("DistanceY", 55, 3, -1, 1, Q("135.4 mm")))
sketch1.addConstraint(Sketcher.Constraint("DistanceX", -1, 1, 60, 3, Q("87.2 mm")))
sketch1.addConstraint(Sketcher.Constraint("DistanceX", -1, 1, 63, 3, Q("4.2 mm")))
sketch1.addConstraint(Sketcher.Constraint("DistanceY", 63, 3, -1, 1, Q("5.3 mm")))
sketch1.addConstraint(Sketcher.Constraint("DistanceX", 0, 2, -1, 1, Q("8.1 mm")))
sketch1.addConstraint(Sketcher.Constraint("DistanceX", 3, 2, -1, 1, Q("4.2 mm")))
sketch1.addConstraint(Sketcher.Constraint("DistanceX", 8, 1, -1, 1, Q("75.8 mm")))
sketch1.addConstraint(Sketcher.Constraint("DistanceY", 12, 2, -1, 1, Q("135.4 mm")))
sketch1.addConstraint(Sketcher.Constraint("DistanceY", 13, 2, -1, 1, Q("135.4 mm")))
sketch1.addConstraint(Sketcher.Constraint("DistanceY", 53, 1, -1, 1, Q("135.4 mm")))
sketch1.addConstraint(Sketcher.Constraint("DistanceY", 54, 2, -1, 1, Q("135.4 mm")))
sketch1.addConstraint(Sketcher.Constraint("DistanceX", -1, 1, 58, 2, Q("75.8 mm")))
sketch1.addConstraint(Sketcher.Constraint("DistanceX", -1, 1, 63, 1, Q("4.2 mm")))
sketch1.addConstraint(Sketcher.Constraint("Radius", 16, Q("1.931685 mm")))
sketch1.addConstraint(Sketcher.Constraint("Radius", 20, Q("7.931685 mm")))
sketch1.addConstraint(Sketcher.Constraint("Radius", 47, Q("7.931685 mm")))
sketch1.addConstraint(Sketcher.Constraint("Radius", 51, Q("1.931685 mm")))
sketch1.addConstraint(Sketcher.Constraint("DistanceY", 24, 2, -1, 1, Q("66.978899 mm")))
sketch1.addConstraint(Sketcher.Constraint("DistanceY", 29, 2, -1, 1, Q("33.5772 mm")))
sketch1.addConstraint(Sketcher.Constraint("DistanceX", 30, 2, -1, 1, Q("43.4053 mm")))
sketch1.addConstraint(Sketcher.Constraint("DistanceX", -1, 1, 36, 2, Q("43.4053 mm")))
sketch1.addConstraint(Sketcher.Constraint("DistanceY", 37, 2, -1, 1, Q("33.5772 mm")))
sketch1.addConstraint(Sketcher.Constraint("DistanceY", 42, 2, -1, 1, Q("66.978899 mm")))
sketch1.addConstraint(Sketcher.Constraint("DistanceX", 11, 3, -1, 1, Q("97.010281 mm")))
sketch1.addConstraint(Sketcher.Constraint("DistanceX", 16, 3, -1, 1, Q("119.556911 mm")))
sketch1.addConstraint(Sketcher.Constraint("DistanceY", 18, 3, -1, 1, Q("198.881989 mm")))
sketch1.addConstraint(Sketcher.Constraint("DistanceY", 22, 3, -1, 1, Q("104.266648 mm")))
sketch1.addConstraint(Sketcher.Constraint("DistanceY", 24, 3, -1, 1, Q("66.110659 mm")))
sketch1.addConstraint(Sketcher.Constraint("DistanceX", 26, 3, -1, 1, Q("43.291239 mm")))
sketch1.addConstraint(Sketcher.Constraint("DistanceX", 30, 3, -1, 1, Q("38.481262 mm")))
sketch1.addConstraint(Sketcher.Constraint("DistanceY", 30, 3, -1, 1, Q("37.672961 mm")))
sketch1.addConstraint(Sketcher.Constraint("DistanceX", -1, 1, 37, 3, Q("38.481262 mm")))
sketch1.addConstraint(Sketcher.Constraint("DistanceY", 37, 3, -1, 1, Q("37.672961 mm")))
sketch1.addConstraint(Sketcher.Constraint("DistanceX", -1, 1, 41, 3, Q("43.291239 mm")))
sketch1.addConstraint(Sketcher.Constraint("DistanceY", 43, 3, -1, 1, Q("66.110659 mm")))
sketch1.addConstraint(Sketcher.Constraint("DistanceY", 45, 3, -1, 1, Q("104.266648 mm")))
sketch1.addConstraint(Sketcher.Constraint("DistanceX", -1, 1, 47, 3, Q("119.556911 mm")))
sketch1.addConstraint(Sketcher.Constraint("DistanceY", 49, 3, -1, 1, Q("198.881989 mm")))
sketch1.addConstraint(Sketcher.Constraint("DistanceX", -1, 1, 56, 3, Q("97.010281 mm")))
sketch1.addConstraint(Sketcher.Constraint("DistanceX", 4, 1, -1, 1, Q("4.177869 mm")))
sketch1.addConstraint(Sketcher.Constraint("DistanceX", 5, 2, -1, 1, Q("76.461639 mm")))
sketch1.addConstraint(Sketcher.Constraint("DistanceX", 6, 2, -1, 1, Q("89.960911 mm")))
sketch1.addConstraint(Sketcher.Constraint("DistanceY", 7, 2, -1, 1, Q("67.476221 mm")))
sketch1.addConstraint(Sketcher.Constraint("DistanceX", 11, 1, -1, 1, Q("97.098218 mm")))
sketch1.addConstraint(Sketcher.Constraint("DistanceY", 15, 2, -1, 1, Q("205.487989 mm")))
sketch1.addConstraint(Sketcher.Constraint("DistanceX", 17, 2, -1, 1, Q("120.12868 mm")))
sketch1.addConstraint(Sketcher.Constraint("DistanceX", 19, 2, -1, 1, Q("127.21833 mm")))
sketch1.addConstraint(Sketcher.Constraint("DistanceY", 19, 2, -1, 1, Q("202.935161 mm")))
sketch1.addConstraint(Sketcher.Constraint("DistanceX", 21, 2, -1, 1, Q("84.010462 mm")))
sketch1.addConstraint(Sketcher.Constraint("DistanceY", 22, 1, -1, 1, Q("101.889808 mm")))
sketch1.addConstraint(Sketcher.Constraint("DistanceX", 26, 1, -1, 1, Q("46.159121 mm")))
sketch1.addConstraint(Sketcher.Constraint("DistanceY", 27, 2, -1, 1, Q("26.942189 mm")))
sketch1.addConstraint(Sketcher.Constraint("DistanceX", 31, 2, -1, 1, Q("47.924039 mm")))
sketch1.addConstraint(Sketcher.Constraint("DistanceX", -1, 1, 35, 2, Q("47.924039 mm")))
sketch1.addConstraint(Sketcher.Constraint("DistanceY", 39, 1, -1, 1, Q("26.942189 mm")))
sketch1.addConstraint(Sketcher.Constraint("DistanceX", -1, 1, 40, 2, Q("46.159121 mm")))
sketch1.addConstraint(Sketcher.Constraint("DistanceY", 44, 1, -1, 1, Q("101.889808 mm")))
sketch1.addConstraint(Sketcher.Constraint("DistanceX", -1, 1, 45, 1, Q("84.010462 mm")))
sketch1.addConstraint(Sketcher.Constraint("DistanceX", -1, 1, 47, 2, Q("127.21833 mm")))
sketch1.addConstraint(Sketcher.Constraint("DistanceY", 47, 2, -1, 1, Q("202.935161 mm")))
sketch1.addConstraint(Sketcher.Constraint("DistanceX", -1, 1, 49, 2, Q("120.12868 mm")))
sketch1.addConstraint(Sketcher.Constraint("DistanceY", 51, 1, -1, 1, Q("205.487989 mm")))
sketch1.addConstraint(Sketcher.Constraint("DistanceX", -1, 1, 55, 2, Q("97.098218 mm")))
sketch1.addConstraint(Sketcher.Constraint("DistanceY", 59, 1, -1, 1, Q("67.476221 mm")))
sketch1.addConstraint(Sketcher.Constraint("DistanceX", -1, 1, 60, 2, Q("89.960911 mm")))
sketch1.addConstraint(Sketcher.Constraint("DistanceX", -1, 1, 61, 2, Q("76.461639 mm")))
sketch1.addConstraint(Sketcher.Constraint("DistanceX", -1, 1, 62, 2, Q("4.177869 mm")))
sketch1.addConstraint(Sketcher.Constraint("Distance", 9, Q("9.095344 mm")))
sketch1.addConstraint(Sketcher.Constraint("Distance", 10, Q("55.629526 mm")))
sketch1.addConstraint(Sketcher.Constraint("Distance", 21, Q("107.739484 mm")))
sketch1.addConstraint(Sketcher.Constraint("Distance", 25, Q("32.178154 mm")))
sketch1.addConstraint(Sketcher.Constraint("Distance", 27, Q("8.926265 mm")))
sketch1.addConstraint(Sketcher.Constraint("Distance", 29, Q("5.855197 mm")))
sketch1.addConstraint(Sketcher.Constraint("Distance", 38, Q("5.855197 mm")))
sketch1.addConstraint(Sketcher.Constraint("Distance", 40, Q("8.926265 mm")))
sketch1.addConstraint(Sketcher.Constraint("Distance", 42, Q("32.178154 mm")))
sketch1.addConstraint(Sketcher.Constraint("Distance", 46, Q("107.739484 mm")))
sketch1.addConstraint(Sketcher.Constraint("Distance", 57, Q("55.629526 mm")))
sketch1.addConstraint(Sketcher.Constraint("Distance", 58, Q("9.095344 mm")))
sketch1.addConstraint(Sketcher.Constraint("DistanceX", 5, 3, -1, 1, Q("3.104826 mm")))
sketch1.addConstraint(Sketcher.Constraint("DistanceX", 18, 3, -1, 1, Q("123.026458 mm")))
sketch1.addConstraint(Sketcher.Constraint("DistanceX", 22, 3, -1, 1, Q("79.180833 mm")))
sketch1.addConstraint(Sketcher.Constraint("DistanceY", 26, 3, -1, 1, Q("36.157845 mm")))
sketch1.addConstraint(Sketcher.Constraint("DistanceY", 39, 3, -1, 1, Q("28.580493 mm")))
sketch1.addConstraint(Sketcher.Constraint("DistanceX", -1, 1, 49, 3, Q("123.026458 mm")))
sketch1.addConstraint(Sketcher.Constraint("DistanceX", -1, 1, 61, 3, Q("78.453828 mm")))
sketch1.addConstraint(Sketcher.Constraint("DistanceX", 9, 2, -1, 1, Q("81.646374 mm")))
sketch1.addConstraint(Sketcher.Constraint("DistanceX", 23, 1, -1, 1, Q("55.790644 mm")))
sketch1.addConstraint(Sketcher.Constraint("DistanceX", 32, 2, -1, 1, Q("40.735673 mm")))
sketch1.addConstraint(Sketcher.Constraint("DistanceX", -1, 1, 34, 1, Q("40.735673 mm")))
sketch1.addConstraint(Sketcher.Constraint("DistanceX", -1, 1, 43, 2, Q("55.790644 mm")))
sketch1.addConstraint(Sketcher.Constraint("DistanceX", -1, 1, 56, 1, Q("96.044355 mm")))
pad1 = doc.addObject("PartDesign::Pad", "Pad")
body.addObject(pad1)
pad1.Profile = sketch1
pad1.Length = 3.175

doc.recompute()
